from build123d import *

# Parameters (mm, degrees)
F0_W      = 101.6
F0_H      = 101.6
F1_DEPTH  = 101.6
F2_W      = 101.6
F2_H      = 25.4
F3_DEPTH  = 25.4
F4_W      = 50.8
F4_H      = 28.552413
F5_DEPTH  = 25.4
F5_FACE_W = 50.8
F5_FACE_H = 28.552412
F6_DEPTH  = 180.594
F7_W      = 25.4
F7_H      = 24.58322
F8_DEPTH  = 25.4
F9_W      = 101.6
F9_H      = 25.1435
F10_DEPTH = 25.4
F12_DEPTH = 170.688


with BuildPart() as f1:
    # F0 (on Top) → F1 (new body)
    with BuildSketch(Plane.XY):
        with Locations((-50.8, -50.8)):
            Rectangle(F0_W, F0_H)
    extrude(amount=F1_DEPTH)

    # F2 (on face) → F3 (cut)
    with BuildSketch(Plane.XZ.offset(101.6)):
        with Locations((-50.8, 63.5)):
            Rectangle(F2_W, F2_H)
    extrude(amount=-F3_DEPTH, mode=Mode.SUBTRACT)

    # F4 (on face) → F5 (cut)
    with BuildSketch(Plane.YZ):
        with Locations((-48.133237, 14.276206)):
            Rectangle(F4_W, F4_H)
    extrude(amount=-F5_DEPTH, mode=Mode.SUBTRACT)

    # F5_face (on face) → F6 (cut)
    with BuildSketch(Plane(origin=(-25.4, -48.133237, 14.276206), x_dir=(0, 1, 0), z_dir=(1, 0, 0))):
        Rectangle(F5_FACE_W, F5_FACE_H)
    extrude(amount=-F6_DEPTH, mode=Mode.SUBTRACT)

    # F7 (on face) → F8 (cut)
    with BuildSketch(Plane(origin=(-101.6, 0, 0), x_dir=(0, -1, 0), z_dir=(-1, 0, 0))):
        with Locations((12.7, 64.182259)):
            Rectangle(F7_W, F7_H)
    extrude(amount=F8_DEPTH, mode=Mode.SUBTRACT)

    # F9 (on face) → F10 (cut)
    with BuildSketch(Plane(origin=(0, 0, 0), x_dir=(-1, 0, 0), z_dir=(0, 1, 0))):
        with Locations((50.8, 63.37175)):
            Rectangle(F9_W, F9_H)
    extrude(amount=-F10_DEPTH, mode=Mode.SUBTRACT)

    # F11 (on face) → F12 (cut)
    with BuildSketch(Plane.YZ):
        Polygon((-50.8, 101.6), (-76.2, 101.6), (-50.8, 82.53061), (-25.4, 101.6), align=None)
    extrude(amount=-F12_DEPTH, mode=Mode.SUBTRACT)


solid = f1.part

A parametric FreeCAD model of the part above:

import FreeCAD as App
import Part
import Sketcher
Q = App.Units.Quantity


def add_polygon(sketch, points):
    """Adds a closed chain of lines whose ends are joined by coincident constraints."""
    first, n = sketch.GeometryCount, len(points)
    for a, b in zip(points, points[1:] + points[:1]):
        sketch.addGeometry(Part.LineSegment(App.Vector(*a, 0), App.Vector(*b, 0)), False)
    for i in range(n):
        sketch.addConstraint(Sketcher.Constraint("Coincident", first + i, 2, first + (i + 1) % n, 1))

doc = App.newDocument("Part")
body = doc.addObject("PartDesign::Body", "Body")

sketch1 = doc.addObject("Sketcher::SketchObject", "Sketch")
body.addObject(sketch1)
sketch1.AttachmentSupport = (doc.XY_Plane, [""])
sketch1.MapMode = "FlatFace"
add_polygon(sketch1, [(-101.6, 0), (-101.6, -101.6), (0, -101.6), (0, 0)])
sketch1.addConstraint([
    Sketcher.Constraint("Vertical", 0),
    Sketcher.Constraint("Horizontal", 1),
    Sketcher.Constraint("Vertical", 2),
    Sketcher.Constraint("Horizontal", 3),
    Sketcher.Constraint("Coincident", 2, 2, -1, 1),
    Sketcher.Constraint("Equal", 3, 0),
    Sketcher.Constraint("DistanceX", 1, 1, 1, 2, Q("4 in")),
])
pad1 = doc.addObject("PartDesign::Pad", "Pad")
body.addObject(pad1)
pad1.Profile = sketch1
pad1.Length = Q("4 in")

sketch2 = doc.addObject("Sketcher::SketchObject", "Sketch001")
body.addObject(sketch2)
sketch2.AttachmentSupport = (doc.XZ_Plane, [""])
sketch2.MapMode = "FlatFace"
sketch2.AttachmentOffset = App.Placement(App.Vector(0, 0, 4 * 25.4), App.Rotation())
add_polygon(sketch2, [(-101.6, 76.2), (-101.6, 50.8), (0, 50.8), (0, 76.2)])
sketch2.addConstraint([
    Sketcher.Constraint("Vertical", 0),
    Sketcher.Constraint("Horizontal", 1),
    Sketcher.Constraint("Vertical", 2),
    Sketcher.Constraint("Horizontal", 3),
    Sketcher.Constraint("PointOnObject", 1, 2, -2),
    Sketcher.Constraint("DistanceX", 1, 1, 1, 2, Q("4 in")),
    Sketcher.Constraint("DistanceY", 0, 2, 0, 1, Q("1 in")),
    Sketcher.Constraint("DistanceY", -1, 1, 0, 2, Q("2 in")),
])
pocket1 = doc.addObject("PartDesign::Pocket", "Pocket")
body.addObject(pocket1)
pocket1.Profile = sketch2
pocket1.Length = Q("1 in")

sketch3 = doc.addObject("Sketcher::SketchObject", "Sketch002")
body.addObject(sketch3)
sketch3.AttachmentSupport = (doc.YZ_Plane, [""])
sketch3.MapMode = "FlatFace"
add_polygon(sketch3, [(-73.533237, 28.552412), (-73.533237, 0), (-22.733237, 0), (-22.733237, 28.552412)])
sketch3.addConstraint([
    Sketcher.Constraint("Vertical", 0),
    Sketcher.Constraint("Horizontal", 1),
    Sketcher.Constraint("Vertical", 2),
    Sketcher.Constraint("Horizontal", 3),
    Sketcher.Constraint("PointOnObject", 0, 2, -1),
    Sketcher.Constraint("DistanceX", 1, 1, 1, 2, Q("2 in")),
    Sketcher.Constraint("DistanceY", 0, 2, 0, 1, 28.552413),
    Sketcher.Constraint("DistanceX", 0, 2, -1, 1, 73.533237),
])
pocket2 = doc.addObject("PartDesign::Pocket", "Pocket001")
body.addObject(pocket2)
pocket2.Profile = sketch3
pocket2.Length = Q("1 in")

sketch4 = doc.addObject("Sketcher::SketchObject", "Sketch003")
body.addObject(sketch4)
sketch4.AttachmentSupport = (doc.YZ_Plane, [""])
sketch4.MapMode = "FlatFace"
sketch4.AttachmentOffset = App.Placement(App.Vector(0, 0, -1 * 25.4), App.Rotation())
add_polygon(sketch4, [(-73.533237, 28.552412), (-73.533237, 0), (-22.733237, 0), (-22.733237, 28.552412)])
sketch4.addConstraint([
    Sketcher.Constraint("Vertical", 0),
    Sketcher.Constraint("Horizontal", 1),
    Sketcher.Constraint("Vertical", 2),
    Sketcher.Constraint("Horizontal", 3),
    Sketcher.Constraint("PointOnObject", 0, 2, -1),
    Sketcher.Constraint("DistanceX", 1, 1, 1, 2, Q("2 in")),
    Sketcher.Constraint("DistanceY", 0, 2, 0, 1, 28.552412),
    Sketcher.Constraint("DistanceX", 0, 2, -1, 1, 73.533237),
])
pocket3 = doc.addObject("PartDesign::Pocket", "Pocket002")
body.addObject(pocket3)
pocket3.Profile = sketch4
pocket3.Length = Q("7.11 in")

sketch5 = doc.addObject("Sketcher::SketchObject", "Sketch004")
body.addObject(sketch5)
sketch5.AttachmentSupport = (doc.YZ_Plane, [""])
sketch5.MapMode = "FlatFace"
sketch5.AttachmentOffset = App.Placement(App.Vector(0, 0, -4 * 25.4), App.Rotation())
add_polygon(sketch5, [(0, 76.473869), (0, 51.890649), (-25.4, 51.890649), (-25.4, 76.473869)])
sketch5.addConstraint([
    Sketcher.Constraint("Vertical", 0),
    Sketcher.Constraint("Horizontal", 1),
    Sketcher.Constraint("Vertical", 2),
    Sketcher.Constraint("Horizontal", 3),
    Sketcher.Constraint("PointOnObject", 0, 2, -2),
    Sketcher.Constraint("DistanceX", 1, 2, 1, 1, Q("1 in")),
    Sketcher.Constraint("DistanceY", 0, 2, 0, 1, 24.58322),
    Sketcher.Constraint("DistanceY", -1, 1, 0, 2, 51.890649),
])
pocket4 = doc.addObject("PartDesign::Pocket", "Pocket003")
body.addObject(pocket4)
pocket4.Profile = sketch5
pocket4.Length = Q("1 in")

sketch6 = doc.addObject("Sketcher::SketchObject", "Sketch005")
body.addObject(sketch6)
sketch6.AttachmentSupport = (doc.XZ_Plane, [""])
sketch6.MapMode = "FlatFace"
add_polygon(sketch6, [(0, 75.9435), (0, 50.8), (-101.6, 50.8), (-101.6, 75.9435)])
sketch6.addConstraint([
    Sketcher.Constraint("Vertical", 0),
    Sketcher.Constraint("Horizontal", 1),
    Sketcher.Constraint("Vertical", 2),
    Sketcher.Constraint("Horizontal", 3),
    Sketcher.Constraint("PointOnObject", 0, 2, -2),
    Sketcher.Constraint("DistanceX", 1, 2, 1, 1, Q("4 in")),
    Sketcher.Constraint("DistanceY", -1, 1, 0, 2, Q("2 in")),
    Sketcher.Constraint("DistanceY", 0, 2, 0, 1, 25.1435),
])
pocket5 = doc.addObject("PartDesign::Pocket", "Pocket004")
body.addObject(pocket5)
pocket5.Profile = sketch6
pocket5.Length = Q("1 in")
pocket5.Reversed = True

sketch7 = doc.addObject("Sketcher::SketchObject", "Sketch006")
body.addObject(sketch7)
sketch7.AttachmentSupport = (doc.YZ_Plane, [""])
sketch7.MapMode = "FlatFace"
add_polygon(sketch7, [(-76.2, 101.6), (-50.8, 82.53061), (-25.4, 101.6)])
sketch7.addConstraint([
    Sketcher.Constraint("Horizontal", 2),
    Sketcher.Constraint("Equal", 0, 1),
    Sketcher.Constraint("DistanceX", 2, 2, 2, 1, Q("2 in")),
    Sketcher.Constraint("DistanceX", 0, 2, -1, 1, Q("2 in")),
    Sketcher.Constraint("DistanceY", -1, 1, 1, 2, Q("4 in")),
    Sketcher.Constraint("DistanceY", -1, 1, 0, 2, 82.53061),
])
pocket6 = doc.addObject("PartDesign::Pocket", "Pocket005")
body.addObject(pocket6)
pocket6.Profile = sketch7
pocket6.Length = Q("6.72 in")

doc.recompute()
